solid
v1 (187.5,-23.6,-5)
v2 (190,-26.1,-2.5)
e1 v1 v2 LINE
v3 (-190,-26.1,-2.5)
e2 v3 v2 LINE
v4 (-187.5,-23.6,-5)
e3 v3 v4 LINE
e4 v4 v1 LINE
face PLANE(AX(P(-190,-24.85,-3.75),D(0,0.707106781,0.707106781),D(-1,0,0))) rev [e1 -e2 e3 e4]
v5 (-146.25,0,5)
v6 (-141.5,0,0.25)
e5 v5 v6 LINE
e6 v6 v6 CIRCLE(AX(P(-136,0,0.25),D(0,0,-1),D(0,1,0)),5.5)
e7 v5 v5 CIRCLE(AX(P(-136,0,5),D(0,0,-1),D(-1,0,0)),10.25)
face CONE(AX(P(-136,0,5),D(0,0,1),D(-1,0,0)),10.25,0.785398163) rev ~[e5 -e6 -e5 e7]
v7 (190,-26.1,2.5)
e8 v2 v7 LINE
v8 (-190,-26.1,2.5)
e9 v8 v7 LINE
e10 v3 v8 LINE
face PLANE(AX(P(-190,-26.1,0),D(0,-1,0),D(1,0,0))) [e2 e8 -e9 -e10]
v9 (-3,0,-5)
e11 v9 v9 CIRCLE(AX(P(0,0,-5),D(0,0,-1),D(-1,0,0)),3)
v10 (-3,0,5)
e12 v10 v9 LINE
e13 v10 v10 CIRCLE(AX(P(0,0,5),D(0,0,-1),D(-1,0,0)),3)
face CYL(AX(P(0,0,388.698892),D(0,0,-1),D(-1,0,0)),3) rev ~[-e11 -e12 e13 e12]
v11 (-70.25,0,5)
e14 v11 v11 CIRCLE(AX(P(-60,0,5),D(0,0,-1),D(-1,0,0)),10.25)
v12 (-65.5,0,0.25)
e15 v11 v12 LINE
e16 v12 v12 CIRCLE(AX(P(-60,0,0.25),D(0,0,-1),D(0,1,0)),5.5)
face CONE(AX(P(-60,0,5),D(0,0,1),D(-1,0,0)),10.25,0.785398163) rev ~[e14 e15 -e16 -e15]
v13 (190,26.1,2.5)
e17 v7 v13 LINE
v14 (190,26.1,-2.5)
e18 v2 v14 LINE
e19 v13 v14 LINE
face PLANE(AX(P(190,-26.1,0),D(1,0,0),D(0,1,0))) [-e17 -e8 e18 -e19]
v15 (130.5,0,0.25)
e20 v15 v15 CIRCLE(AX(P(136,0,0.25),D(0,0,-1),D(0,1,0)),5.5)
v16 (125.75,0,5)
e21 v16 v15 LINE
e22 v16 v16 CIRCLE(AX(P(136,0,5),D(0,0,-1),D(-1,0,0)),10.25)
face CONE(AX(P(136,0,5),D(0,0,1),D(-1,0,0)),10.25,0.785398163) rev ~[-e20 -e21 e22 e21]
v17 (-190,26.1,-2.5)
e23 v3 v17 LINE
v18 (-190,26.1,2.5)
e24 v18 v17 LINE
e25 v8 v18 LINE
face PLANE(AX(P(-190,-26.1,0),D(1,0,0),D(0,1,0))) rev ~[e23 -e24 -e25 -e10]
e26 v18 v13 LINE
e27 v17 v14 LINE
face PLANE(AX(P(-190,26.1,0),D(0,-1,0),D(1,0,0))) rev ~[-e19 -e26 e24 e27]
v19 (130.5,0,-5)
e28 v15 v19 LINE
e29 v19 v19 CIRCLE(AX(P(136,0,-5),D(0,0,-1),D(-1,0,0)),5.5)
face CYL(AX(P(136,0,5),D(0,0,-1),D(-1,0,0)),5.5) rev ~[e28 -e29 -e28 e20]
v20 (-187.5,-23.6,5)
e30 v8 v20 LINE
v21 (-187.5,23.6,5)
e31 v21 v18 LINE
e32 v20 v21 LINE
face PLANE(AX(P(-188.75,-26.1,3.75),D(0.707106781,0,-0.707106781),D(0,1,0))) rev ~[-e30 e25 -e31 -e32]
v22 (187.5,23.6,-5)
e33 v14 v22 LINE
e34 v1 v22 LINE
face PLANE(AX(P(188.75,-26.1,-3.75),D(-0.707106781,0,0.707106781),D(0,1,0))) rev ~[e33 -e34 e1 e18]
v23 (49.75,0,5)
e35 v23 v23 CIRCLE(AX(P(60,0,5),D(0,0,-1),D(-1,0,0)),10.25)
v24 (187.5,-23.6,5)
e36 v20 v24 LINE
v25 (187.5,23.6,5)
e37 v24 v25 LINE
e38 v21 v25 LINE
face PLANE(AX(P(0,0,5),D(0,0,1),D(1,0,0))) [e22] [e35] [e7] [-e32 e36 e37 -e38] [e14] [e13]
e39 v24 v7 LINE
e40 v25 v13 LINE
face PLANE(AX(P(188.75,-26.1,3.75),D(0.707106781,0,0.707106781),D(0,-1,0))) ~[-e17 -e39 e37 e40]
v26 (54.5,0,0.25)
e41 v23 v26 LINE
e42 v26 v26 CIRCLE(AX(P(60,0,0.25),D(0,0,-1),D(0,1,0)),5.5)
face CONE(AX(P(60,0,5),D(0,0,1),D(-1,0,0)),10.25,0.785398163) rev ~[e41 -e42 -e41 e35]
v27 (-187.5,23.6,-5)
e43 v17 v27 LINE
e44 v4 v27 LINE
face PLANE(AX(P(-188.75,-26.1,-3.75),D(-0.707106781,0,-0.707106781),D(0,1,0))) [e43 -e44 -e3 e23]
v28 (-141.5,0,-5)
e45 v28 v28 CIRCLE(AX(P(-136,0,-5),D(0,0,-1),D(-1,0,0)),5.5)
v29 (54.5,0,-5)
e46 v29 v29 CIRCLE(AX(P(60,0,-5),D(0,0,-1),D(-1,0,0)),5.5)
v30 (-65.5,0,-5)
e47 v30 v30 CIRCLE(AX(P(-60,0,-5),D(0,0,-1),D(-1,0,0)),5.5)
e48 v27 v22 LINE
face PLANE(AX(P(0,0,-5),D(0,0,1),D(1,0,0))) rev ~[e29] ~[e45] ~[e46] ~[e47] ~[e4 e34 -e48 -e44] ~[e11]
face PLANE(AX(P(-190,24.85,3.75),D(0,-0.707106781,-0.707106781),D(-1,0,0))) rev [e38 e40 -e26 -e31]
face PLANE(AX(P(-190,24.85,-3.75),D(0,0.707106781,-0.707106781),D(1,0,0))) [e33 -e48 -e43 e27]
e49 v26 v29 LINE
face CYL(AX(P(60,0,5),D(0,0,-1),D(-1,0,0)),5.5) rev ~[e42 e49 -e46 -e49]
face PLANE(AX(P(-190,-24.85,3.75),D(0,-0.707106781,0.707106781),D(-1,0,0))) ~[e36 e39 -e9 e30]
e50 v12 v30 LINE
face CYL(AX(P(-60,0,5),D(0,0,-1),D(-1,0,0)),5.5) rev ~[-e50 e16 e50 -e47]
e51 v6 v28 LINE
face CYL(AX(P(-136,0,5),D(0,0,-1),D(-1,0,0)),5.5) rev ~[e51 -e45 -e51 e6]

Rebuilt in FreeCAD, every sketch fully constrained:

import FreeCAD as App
import Part
import Sketcher
Q = App.Units.Quantity


def edges_at(feature, points):
    """Names of the edges that pass closest to the given points."""
    edges = feature.Shape.Edges
    near = lambda p: min(range(len(edges)), key=lambda i: edges[i].distToShape(Part.Vertex(*p))[0])
    return sorted({f"Edge{near(p) + 1}" for p in points})


def add_polygon(sketch, points):
    """Adds a closed chain of lines whose ends are joined by coincident constraints."""
    first, n = sketch.GeometryCount, len(points)
    for a, b in zip(points, points[1:] + points[:1]):
        sketch.addGeometry(Part.LineSegment(App.Vector(*a, 0), App.Vector(*b, 0)), False)
    for i in range(n):
        sketch.addConstraint(Sketcher.Constraint("Coincident", first + i, 2, first + (i + 1) % n, 1))

doc = App.newDocument("Part")
body = doc.addObject("PartDesign::Body", "Body")

sketch1 = body.newObject("Sketcher::SketchObject", "Sketch")
sketch1.AttachmentSupport = (doc.getObject("XY_Plane"), [""])
sketch1.MapMode = "FlatFace"
add_polygon(sketch1, [(-190, 26), (-190, -26), (190, -26), (190, 26)])
sketch1.addConstraint([
    Sketcher.Constraint("Vertical", 0),
    Sketcher.Constraint("Horizontal", 1),
    Sketcher.Constraint("Vertical", 2),
    Sketcher.Constraint("Horizontal", 3),
    Sketcher.Constraint("Symmetric", 0, 2, 2, 2, -1, 1),
    Sketcher.Constraint("DistanceX", 1, 1, 1, 2, Q("380 mm")),
    Sketcher.Constraint("DistanceY", 0, 2, 0, 1, Q("52.2 mm")),
])
pad1 = body.newObject("PartDesign::Pad", "Pad")
pad1.Profile = sketch1
pad1.Length = 10
pad1.Midplane = True
doc.recompute()

chamfer = body.newObject("PartDesign::Chamfer", "Chamfer")
chamfer.Base = (pad1, edges_at(pad1, [
    (0, 26.1, 5),
    (-190, 0, 5),
    (0, -26.1, 5),
    (190, 0, 5),
    (0, 26.1, -5),
    (-190, 0, -5),
    (0, -26.1, -5),
    (190, 0, -5),
]))
chamfer.Size = 2.5

sketch2 = body.newObject("Sketcher::SketchObject", "Sketch001")
sketch2.AttachmentSupport = (doc.getObject("XY_Plane"), [""])
sketch2.MapMode = "FlatFace"
sketch2.AttachmentOffset = App.Placement(App.Vector(0, 0, 5), App.Rotation())
sketch2.addGeometry(Part.Circle(App.Vector(0, 0, 0), App.Vector(0, 0, 1), 3), False)
sketch2.addConstraint([
    Sketcher.Constraint("Coincident", 0, 3, -1, 1),
    Sketcher.Constraint("Diameter", 0, Q("6 mm")),
])
doc.recompute()
hole = body.newObject("PartDesign::Hole", "Hole")
hole.Profile = sketch2
hole.ThreadType = "None"
hole.Diameter = 6
hole.DepthType = "ThroughAll"

sketch3 = body.newObject("Sketcher::SketchObject", "Sketch002")
sketch3.AttachmentSupport = (doc.getObject("XY_Plane"), [""])
sketch3.MapMode = "FlatFace"
sketch3.AttachmentOffset = App.Placement(App.Vector(0, 0, 5), App.Rotation())
sketch3.addGeometry([
    Part.Circle(App.Vector(-136, 0, 0), App.Vector(0, 0, 1), 6),
    Part.Circle(App.Vector(-60, 0, 0), App.Vector(0, 0, 1), 6),
    Part.Circle(App.Vector(60, 0, 0), App.Vector(0, 0, 1), 6),
    Part.Circle(App.Vector(136, 0, 0), App.Vector(0, 0, 1), 6),
], False)
sketch3.addConstraint([
    Sketcher.Constraint("Equal", 0, 1),
    Sketcher.Constraint("Equal", 1, 2),
    Sketcher.Constraint("Equal", 2, 3),
    Sketcher.Constraint("Symmetric", 1, 3, 2, 3, -1, 1),
    Sketcher.Constraint("Symmetric", 0, 3, 3, 3, -1, 1),
    Sketcher.Constraint("PointOnObject", 0, 3, -1),
    Sketcher.Constraint("PointOnObject", 1, 3, -1),
    Sketcher.Constraint("Diameter", 0, Q("11 mm")),
    Sketcher.Constraint("DistanceX", 0, 3, -1, 1, Q("136 mm")),
    Sketcher.Constraint("DistanceX", 1, 3, -1, 1, Q("60 mm")),
])
doc.recompute()
hole2 = body.newObject("PartDesign::Hole", "Hole001")
hole2.Profile = sketch3
hole2.ThreadType = "None"
hole2.Diameter = 11
hole2.DepthType = "ThroughAll"
hole2.HoleCutType = "Countersink"
hole2.HoleCutDiameter = 20.5
hole2.HoleCutCountersinkAngle = 90

doc.recompute()
